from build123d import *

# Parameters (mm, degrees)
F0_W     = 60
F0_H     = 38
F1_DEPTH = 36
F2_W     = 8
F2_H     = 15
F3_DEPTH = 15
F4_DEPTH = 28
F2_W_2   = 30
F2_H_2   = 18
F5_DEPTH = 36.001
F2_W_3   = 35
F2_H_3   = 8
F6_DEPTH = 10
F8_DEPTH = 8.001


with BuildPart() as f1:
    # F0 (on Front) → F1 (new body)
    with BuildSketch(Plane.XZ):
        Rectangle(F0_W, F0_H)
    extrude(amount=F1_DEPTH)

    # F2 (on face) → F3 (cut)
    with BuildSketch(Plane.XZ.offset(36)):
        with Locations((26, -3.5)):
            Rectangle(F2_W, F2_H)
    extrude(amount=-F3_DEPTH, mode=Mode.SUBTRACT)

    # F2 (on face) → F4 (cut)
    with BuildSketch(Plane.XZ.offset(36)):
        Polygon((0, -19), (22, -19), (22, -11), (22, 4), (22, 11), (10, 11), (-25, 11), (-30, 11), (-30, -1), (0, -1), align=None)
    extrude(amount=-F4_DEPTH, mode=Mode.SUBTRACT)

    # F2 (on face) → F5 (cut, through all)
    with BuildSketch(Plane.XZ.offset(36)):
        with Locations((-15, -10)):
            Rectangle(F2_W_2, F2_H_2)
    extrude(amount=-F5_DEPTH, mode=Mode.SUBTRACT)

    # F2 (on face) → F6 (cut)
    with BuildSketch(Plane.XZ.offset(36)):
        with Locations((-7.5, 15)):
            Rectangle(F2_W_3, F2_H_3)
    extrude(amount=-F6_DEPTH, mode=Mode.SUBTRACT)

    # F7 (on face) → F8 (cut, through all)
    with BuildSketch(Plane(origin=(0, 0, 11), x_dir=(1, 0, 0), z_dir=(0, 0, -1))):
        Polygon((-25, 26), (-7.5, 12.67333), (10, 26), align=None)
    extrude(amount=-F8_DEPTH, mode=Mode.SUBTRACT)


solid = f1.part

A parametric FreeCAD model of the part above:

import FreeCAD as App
import Part
import Sketcher
from FreeCAD import Vector


def add_polygon(sketch, points):
    """Adds a closed chain of lines whose ends are joined by coincident constraints."""
    first, n = sketch.GeometryCount, len(points)
    for a, b in zip(points, points[1:] + points[:1]):
        sketch.addGeometry(Part.LineSegment(App.Vector(*a, 0), App.Vector(*b, 0)), False)
    for i in range(n):
        sketch.addConstraint(Sketcher.Constraint("Coincident", first + i, 2, first + (i + 1) % n, 1))

doc = App.newDocument("Part")
body = doc.addObject("PartDesign::Body", "Body")

sketch1 = doc.addObject("Sketcher::SketchObject", "Sketch")
body.addObject(sketch1)
sketch1.AttachmentSupport = (doc.XZ_Plane, [""])
sketch1.MapMode = "FlatFace"
add_polygon(sketch1, [(-30, 19), (-30, -19), (30, -19), (30, 19)])
sketch1.addConstraint([
    Sketcher.Constraint("Vertical", 0),
    Sketcher.Constraint("Horizontal", 1),
    Sketcher.Constraint("Vertical", 2),
    Sketcher.Constraint("Horizontal", 3),
    Sketcher.Constraint("Symmetric", 0, 2, 2, 2, -1, 1),
    Sketcher.Constraint("DistanceX", 1, 1, 1, 2, 60.0),
    Sketcher.Constraint("DistanceY", 0, 2, 0, 1, 38.0),
])
pad1 = doc.addObject("PartDesign::Pad", "Pad")
body.addObject(pad1)
pad1.Profile = sketch1
pad1.Length = 36

sketch2 = doc.addObject("Sketcher::SketchObject", "Sketch001")
body.addObject(sketch2)
sketch2.AttachmentSupport = (doc.XZ_Plane, [""])
sketch2.MapMode = "FlatFace"
sketch2.AttachmentOffset = App.Placement(Vector(0, 0, 36), App.Rotation())
add_polygon(sketch2, [(22, 4), (22, -11), (30, -11), (30, 4)])
sketch2.addConstraint([
    Sketcher.Constraint("Vertical", 0),
    Sketcher.Constraint("Horizontal", 1),
    Sketcher.Constraint("Vertical", 2),
    Sketcher.Constraint("Horizontal", 3),
    Sketcher.Constraint("DistanceX", 1, 1, 1, 2, 8.0),
    Sketcher.Constraint("DistanceY", 0, 2, 0, 1, 15.0),
    Sketcher.Constraint("DistanceX", -1, 1, 0, 2, 22.0),
    Sketcher.Constraint("DistanceY", 0, 2, -1, 1, 11.0),
])
pocket1 = doc.addObject("PartDesign::Pocket", "Pocket")
body.addObject(pocket1)
pocket1.Profile = sketch2
pocket1.Length = 15

sketch3 = doc.addObject("Sketcher::SketchObject", "Sketch002")
body.addObject(sketch3)
sketch3.AttachmentSupport = (doc.XZ_Plane, [""])
sketch3.MapMode = "FlatFace"
sketch3.AttachmentOffset = App.Placement(Vector(0, 0, 36), App.Rotation())
add_polygon(sketch3, [(0, -19), (22, -19), (22, 11), (-30, 11), (-30, -1), (0, -1)])
sketch3.addConstraint([
    Sketcher.Constraint("Horizontal", 0),
    Sketcher.Constraint("Vertical", 1),
    Sketcher.Constraint("Horizontal", 2),
    Sketcher.Constraint("Vertical", 3),
    Sketcher.Constraint("Horizontal", 4),
    Sketcher.Constraint("Vertical", 5),
    Sketcher.Constraint("PointOnObject", 4, 2, -2),
    Sketcher.Constraint("Equal", 4, 1),
    Sketcher.Constraint("DistanceX", 0, 1, 0, 2, 22.0),
    Sketcher.Constraint("DistanceX", 2, 2, 2, 1, 52.0),
    Sketcher.Constraint("DistanceY", 3, 2, 3, 1, 12.0),
    Sketcher.Constraint("DistanceY", 0, 2, -1, 1, 19.0),
])
pocket2 = doc.addObject("PartDesign::Pocket", "Pocket001")
body.addObject(pocket2)
pocket2.Profile = sketch3
pocket2.Length = 28

sketch4 = doc.addObject("Sketcher::SketchObject", "Sketch003")
body.addObject(sketch4)
sketch4.AttachmentSupport = (doc.XZ_Plane, [""])
sketch4.MapMode = "FlatFace"
sketch4.AttachmentOffset = App.Placement(Vector(0, 0, 36), App.Rotation())
add_polygon(sketch4, [(-30, -1), (-30, -19), (0, -19), (0, -1)])
sketch4.addConstraint([
    Sketcher.Constraint("Vertical", 0),
    Sketcher.Constraint("Horizontal", 1),
    Sketcher.Constraint("Vertical", 2),
    Sketcher.Constraint("Horizontal", 3),
    Sketcher.Constraint("PointOnObject", 1, 2, -2),
    Sketcher.Constraint("DistanceX", 1, 1, 1, 2, 30.0),
    Sketcher.Constraint("DistanceY", 0, 2, 0, 1, 18.0),
    Sketcher.Constraint("DistanceY", 0, 2, -1, 1, 19.0),
])
pocket3 = doc.addObject("PartDesign::Pocket", "Pocket002")
body.addObject(pocket3)
pocket3.Profile = sketch4
pocket3.Type = "ThroughAll"

sketch5 = doc.addObject("Sketcher::SketchObject", "Sketch004")
body.addObject(sketch5)
sketch5.AttachmentSupport = (doc.XZ_Plane, [""])
sketch5.MapMode = "FlatFace"
sketch5.AttachmentOffset = App.Placement(Vector(0, 0, 36), App.Rotation())
add_polygon(sketch5, [(-25, 19), (-25, 11), (10, 11), (10, 19)])
sketch5.addConstraint([
    Sketcher.Constraint("Vertical", 0),
    Sketcher.Constraint("Horizontal", 1),
    Sketcher.Constraint("Vertical", 2),
    Sketcher.Constraint("Horizontal", 3),
    Sketcher.Constraint("DistanceX", 1, 1, 1, 2, 35.0),
    Sketcher.Constraint("DistanceY", 0, 2, 0, 1, 8.0),
    Sketcher.Constraint("DistanceX", 0, 2, -1, 1, 25.0),
    Sketcher.Constraint("DistanceY", -1, 1, 0, 2, 11.0),
])
pocket4 = doc.addObject("PartDesign::Pocket", "Pocket003")
body.addObject(pocket4)
pocket4.Profile = sketch5
pocket4.Length = 10

sketch6 = doc.addObject("Sketcher::SketchObject", "Sketch005")
body.addObject(sketch6)
sketch6.AttachmentSupport = (doc.XY_Plane, [""])
sketch6.MapMode = "FlatFace"
sketch6.AttachmentOffset = App.Placement(Vector(0, 0, 11), App.Rotation())
add_polygon(sketch6, [(-25, -26), (-8, -13), (10, -26)])
sketch6.addConstraint([
    Sketcher.Constraint("Horizontal", 2),
    Sketcher.Constraint("Equal", 0, 1),
    Sketcher.Constraint("DistanceX", 2, 2, 2, 1, 35.0),
    Sketcher.Constraint("DistanceX", -1, 1, 1, 2, 10.0),
    Sketcher.Constraint("DistanceY", 1, 2, -1, 1, 26.0),
    Sketcher.Constraint("DistanceY", 0, 2, -1, 1, 12.67333),
])
pocket5 = doc.addObject("PartDesign::Pocket", "Pocket004")
body.addObject(pocket5)
pocket5.Profile = sketch6
pocket5.Type = "ThroughAll"
pocket5.Reversed = True

doc.recompute()
